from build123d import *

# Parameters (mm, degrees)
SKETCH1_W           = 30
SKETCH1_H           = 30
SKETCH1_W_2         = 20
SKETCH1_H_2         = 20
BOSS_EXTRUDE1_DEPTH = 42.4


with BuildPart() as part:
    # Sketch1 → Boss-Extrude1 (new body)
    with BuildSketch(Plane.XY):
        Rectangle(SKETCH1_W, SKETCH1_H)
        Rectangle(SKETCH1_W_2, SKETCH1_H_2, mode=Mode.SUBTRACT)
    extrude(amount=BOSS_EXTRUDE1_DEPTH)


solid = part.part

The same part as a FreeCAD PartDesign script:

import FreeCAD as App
import Part
import Sketcher
from FreeCAD import Vector

doc = App.newDocument("Part")
body = doc.addObject("PartDesign::Body", "Body")

# Sketch on XY plane
sketch1 = body.newObject("Sketcher::SketchObject", "Sketch")
sketch1.AttachmentSupport = (doc.getObject("XY_Plane"), [""])
sketch1.MapMode = "FlatFace"
sketch1.addGeometry(Part.LineSegment(Vector(-15, 15, 0), Vector(-15, -15, 0)), False)
sketch1.addGeometry(Part.LineSegment(Vector(-15, -15, 0), Vector(15, -15, 0)), False)
sketch1.addGeometry(Part.LineSegment(Vector(15, -15, 0), Vector(15, 15, 0)), False)
sketch1.addGeometry(Part.LineSegment(Vector(15, 15, 0), Vector(-15, 15, 0)), False)
sketch1.addGeometry(Part.LineSegment(Vector(10, -10, 0), Vector(-10, -10, 0)), False)
sketch1.addGeometry(Part.LineSegment(Vector(-10, -10, 0), Vector(-10, 10, 0)), False)
sketch1.addGeometry(Part.LineSegment(Vector(-10, 10, 0), Vector(10, 10, 0)), False)
sketch1.addGeometry(Part.LineSegment(Vector(10, 10, 0), Vector(10, -10, 0)), False)
sketch1.addConstraint(Sketcher.Constraint("Coincident", 0, 2, 1, 1))
sketch1.addConstraint(Sketcher.Constraint("Coincident", 1, 2, 2, 1))
sketch1.addConstraint(Sketcher.Constraint("Coincident", 2, 2, 3, 1))
sketch1.addConstraint(Sketcher.Constraint("Coincident", 3, 2, 0, 1))
sketch1.addConstraint(Sketcher.Constraint("Coincident", 4, 2, 5, 1))
sketch1.addConstraint(Sketcher.Constraint("Coincident", 5, 2, 6, 1))
sketch1.addConstraint(Sketcher.Constraint("Coincident", 6, 2, 7, 1))
sketch1.addConstraint(Sketcher.Constraint("Coincident", 7, 2, 4, 1))
sketch1.addConstraint(Sketcher.Constraint("Vertical", 0))
sketch1.addConstraint(Sketcher.Constraint("Horizontal", 1))
sketch1.addConstraint(Sketcher.Constraint("Vertical", 2))
sketch1.addConstraint(Sketcher.Constraint("Horizontal", 3))
sketch1.addConstraint(Sketcher.Constraint("Horizontal", 4))
sketch1.addConstraint(Sketcher.Constraint("Vertical", 5))
sketch1.addConstraint(Sketcher.Constraint("Horizontal", 6))
sketch1.addConstraint(Sketcher.Constraint("Vertical", 7))
sketch1.addConstraint(Sketcher.Constraint("Symmetric", 0, 2, 2, 2, -1, 1))
sketch1.addConstraint(Sketcher.Constraint("Symmetric", 4, 2, 6, 2, -1, 1))
sketch1.addConstraint(Sketcher.Constraint("Equal", 3, 0))
sketch1.addConstraint(Sketcher.Constraint("Equal", 6, 5))
sketch1.addConstraint(Sketcher.Constraint("DistanceX", 1, 1, 1, 2, 30.0))
sketch1.addConstraint(Sketcher.Constraint("DistanceX", 4, 2, 4, 1, 20.0))
pad1 = body.newObject("PartDesign::Pad", "Pad")
pad1.Profile = sketch1
pad1.Length = 42.4

doc.recompute()
